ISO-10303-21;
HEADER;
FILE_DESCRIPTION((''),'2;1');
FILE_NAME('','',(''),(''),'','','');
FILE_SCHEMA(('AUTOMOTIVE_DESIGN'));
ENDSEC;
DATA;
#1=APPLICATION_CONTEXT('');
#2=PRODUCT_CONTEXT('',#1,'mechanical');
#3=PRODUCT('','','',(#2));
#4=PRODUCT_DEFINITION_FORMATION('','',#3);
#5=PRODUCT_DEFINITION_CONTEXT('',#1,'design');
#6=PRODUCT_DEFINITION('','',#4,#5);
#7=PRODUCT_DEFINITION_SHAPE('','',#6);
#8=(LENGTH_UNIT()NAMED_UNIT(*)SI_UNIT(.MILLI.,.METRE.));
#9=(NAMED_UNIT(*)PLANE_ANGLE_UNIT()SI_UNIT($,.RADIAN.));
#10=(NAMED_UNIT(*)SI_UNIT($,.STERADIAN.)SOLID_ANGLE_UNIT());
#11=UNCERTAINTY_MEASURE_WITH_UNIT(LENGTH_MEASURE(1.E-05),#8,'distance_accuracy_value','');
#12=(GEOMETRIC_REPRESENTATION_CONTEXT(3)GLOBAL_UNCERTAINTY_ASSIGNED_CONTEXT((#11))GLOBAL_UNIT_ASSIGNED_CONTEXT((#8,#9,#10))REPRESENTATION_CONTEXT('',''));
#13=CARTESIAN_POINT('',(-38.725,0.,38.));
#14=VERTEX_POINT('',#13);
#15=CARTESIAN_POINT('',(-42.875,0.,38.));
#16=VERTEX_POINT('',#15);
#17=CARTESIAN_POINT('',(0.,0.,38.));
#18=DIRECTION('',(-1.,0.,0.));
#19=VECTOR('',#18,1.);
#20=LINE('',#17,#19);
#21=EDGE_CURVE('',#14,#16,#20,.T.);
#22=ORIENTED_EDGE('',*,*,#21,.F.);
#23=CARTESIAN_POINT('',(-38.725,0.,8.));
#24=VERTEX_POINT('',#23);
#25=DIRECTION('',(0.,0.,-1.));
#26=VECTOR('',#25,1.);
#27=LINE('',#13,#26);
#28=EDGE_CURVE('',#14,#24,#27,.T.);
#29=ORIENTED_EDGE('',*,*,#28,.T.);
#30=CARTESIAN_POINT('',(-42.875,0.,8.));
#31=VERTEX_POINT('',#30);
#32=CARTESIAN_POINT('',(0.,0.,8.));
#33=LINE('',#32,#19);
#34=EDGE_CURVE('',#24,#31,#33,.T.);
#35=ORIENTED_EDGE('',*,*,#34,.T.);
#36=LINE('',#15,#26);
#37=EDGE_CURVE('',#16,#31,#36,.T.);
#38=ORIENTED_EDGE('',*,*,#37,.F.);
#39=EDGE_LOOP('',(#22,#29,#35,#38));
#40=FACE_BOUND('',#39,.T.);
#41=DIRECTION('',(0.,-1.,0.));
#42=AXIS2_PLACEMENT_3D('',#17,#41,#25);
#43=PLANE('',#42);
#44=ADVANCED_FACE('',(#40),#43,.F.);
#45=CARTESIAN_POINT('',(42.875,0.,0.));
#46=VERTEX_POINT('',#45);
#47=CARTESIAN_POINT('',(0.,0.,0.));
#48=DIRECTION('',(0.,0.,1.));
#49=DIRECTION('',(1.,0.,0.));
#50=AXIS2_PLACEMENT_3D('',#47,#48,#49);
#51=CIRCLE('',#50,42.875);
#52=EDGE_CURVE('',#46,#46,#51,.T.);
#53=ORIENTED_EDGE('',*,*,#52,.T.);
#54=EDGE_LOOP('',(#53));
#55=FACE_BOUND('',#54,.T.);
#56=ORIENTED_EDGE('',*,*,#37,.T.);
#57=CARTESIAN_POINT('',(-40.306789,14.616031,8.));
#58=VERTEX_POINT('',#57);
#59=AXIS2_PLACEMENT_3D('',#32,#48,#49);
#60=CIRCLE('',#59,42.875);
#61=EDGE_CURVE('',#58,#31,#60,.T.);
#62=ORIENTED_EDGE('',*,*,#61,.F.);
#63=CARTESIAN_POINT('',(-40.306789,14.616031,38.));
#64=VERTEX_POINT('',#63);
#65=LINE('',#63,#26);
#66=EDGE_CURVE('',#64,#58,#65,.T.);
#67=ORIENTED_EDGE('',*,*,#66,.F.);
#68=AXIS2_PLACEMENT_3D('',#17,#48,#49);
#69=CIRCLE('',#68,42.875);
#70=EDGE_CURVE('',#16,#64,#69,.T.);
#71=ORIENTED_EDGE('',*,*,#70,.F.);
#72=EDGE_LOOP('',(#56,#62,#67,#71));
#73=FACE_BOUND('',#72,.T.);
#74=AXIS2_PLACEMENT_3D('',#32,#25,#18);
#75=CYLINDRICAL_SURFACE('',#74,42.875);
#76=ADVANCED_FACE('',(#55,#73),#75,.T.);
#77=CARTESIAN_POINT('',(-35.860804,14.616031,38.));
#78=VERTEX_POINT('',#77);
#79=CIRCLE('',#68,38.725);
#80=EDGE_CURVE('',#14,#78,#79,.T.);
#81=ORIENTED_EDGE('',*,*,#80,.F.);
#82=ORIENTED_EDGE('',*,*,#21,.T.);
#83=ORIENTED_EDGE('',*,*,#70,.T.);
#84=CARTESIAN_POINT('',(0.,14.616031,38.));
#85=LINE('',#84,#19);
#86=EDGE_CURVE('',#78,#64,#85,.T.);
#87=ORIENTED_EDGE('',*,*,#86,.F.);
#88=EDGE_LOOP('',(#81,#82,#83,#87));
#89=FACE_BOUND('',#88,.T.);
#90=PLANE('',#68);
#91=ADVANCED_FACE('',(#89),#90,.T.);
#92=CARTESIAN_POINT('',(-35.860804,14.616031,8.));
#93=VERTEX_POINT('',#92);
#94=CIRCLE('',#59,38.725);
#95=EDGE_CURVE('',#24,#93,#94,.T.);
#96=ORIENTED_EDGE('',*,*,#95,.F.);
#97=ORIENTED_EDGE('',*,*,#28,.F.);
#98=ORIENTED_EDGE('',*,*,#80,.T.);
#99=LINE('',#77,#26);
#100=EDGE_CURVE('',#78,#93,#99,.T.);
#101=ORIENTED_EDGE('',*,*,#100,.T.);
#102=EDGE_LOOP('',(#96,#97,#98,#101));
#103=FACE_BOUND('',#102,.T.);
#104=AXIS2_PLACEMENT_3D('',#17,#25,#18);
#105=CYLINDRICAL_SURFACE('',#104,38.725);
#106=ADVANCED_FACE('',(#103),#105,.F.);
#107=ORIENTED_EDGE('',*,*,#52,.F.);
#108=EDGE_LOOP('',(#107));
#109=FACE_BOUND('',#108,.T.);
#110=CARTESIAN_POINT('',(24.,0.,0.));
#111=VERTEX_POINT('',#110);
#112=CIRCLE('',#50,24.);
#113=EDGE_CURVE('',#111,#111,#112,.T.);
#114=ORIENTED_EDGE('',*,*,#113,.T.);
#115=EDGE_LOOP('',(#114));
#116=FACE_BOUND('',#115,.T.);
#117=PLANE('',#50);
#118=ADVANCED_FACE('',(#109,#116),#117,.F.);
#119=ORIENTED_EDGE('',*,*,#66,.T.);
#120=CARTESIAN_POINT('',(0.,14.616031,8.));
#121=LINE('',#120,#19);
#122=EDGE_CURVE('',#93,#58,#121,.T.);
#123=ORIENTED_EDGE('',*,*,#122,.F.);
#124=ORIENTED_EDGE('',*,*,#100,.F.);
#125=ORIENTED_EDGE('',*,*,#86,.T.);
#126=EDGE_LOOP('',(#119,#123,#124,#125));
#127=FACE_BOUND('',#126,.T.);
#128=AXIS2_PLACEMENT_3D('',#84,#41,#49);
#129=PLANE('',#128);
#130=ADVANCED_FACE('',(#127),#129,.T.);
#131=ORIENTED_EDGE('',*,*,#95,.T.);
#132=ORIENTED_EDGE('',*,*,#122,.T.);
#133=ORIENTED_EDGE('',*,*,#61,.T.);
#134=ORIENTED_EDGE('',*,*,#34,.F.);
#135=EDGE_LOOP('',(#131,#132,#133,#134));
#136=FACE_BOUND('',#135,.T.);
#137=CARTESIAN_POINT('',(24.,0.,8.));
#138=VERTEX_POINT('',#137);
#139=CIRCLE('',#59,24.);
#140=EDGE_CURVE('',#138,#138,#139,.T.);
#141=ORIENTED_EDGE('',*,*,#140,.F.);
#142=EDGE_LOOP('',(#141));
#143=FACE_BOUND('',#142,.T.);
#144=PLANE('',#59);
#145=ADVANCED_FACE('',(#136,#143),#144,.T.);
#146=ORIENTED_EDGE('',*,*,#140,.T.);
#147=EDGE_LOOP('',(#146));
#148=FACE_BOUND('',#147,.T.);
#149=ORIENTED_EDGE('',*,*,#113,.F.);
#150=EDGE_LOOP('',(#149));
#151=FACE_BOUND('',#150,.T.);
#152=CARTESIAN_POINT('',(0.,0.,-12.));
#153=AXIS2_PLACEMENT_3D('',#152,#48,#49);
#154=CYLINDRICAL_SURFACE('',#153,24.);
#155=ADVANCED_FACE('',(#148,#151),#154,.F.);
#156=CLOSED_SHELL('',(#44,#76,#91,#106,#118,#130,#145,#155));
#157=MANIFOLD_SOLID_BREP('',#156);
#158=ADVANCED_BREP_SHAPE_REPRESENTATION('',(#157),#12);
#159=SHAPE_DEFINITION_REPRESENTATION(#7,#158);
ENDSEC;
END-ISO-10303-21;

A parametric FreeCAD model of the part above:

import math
import FreeCAD as App
import Part
import Sketcher

V = App.Vector
Q = App.Units.Quantity

doc = App.newDocument("Part")
body = doc.addObject("PartDesign::Body", "Body")

# Sketch on XY plane
sketch1 = doc.addObject("Sketcher::SketchObject", "Sketch")
body.addObject(sketch1)
sketch1.AttachmentSupport = (doc.XY_Plane, [""])
sketch1.MapMode = "FlatFace"
sketch1.addGeometry(Part.Circle(V(0, 0, 0), V(0, 0, 1), 43), False)
sketch1.addConstraint([
    Sketcher.Constraint("Coincident", 0, 3, -1, 1),
    Sketcher.Constraint("Diameter", 0, Q("85.75 mm")),
])
pad1 = doc.addObject("PartDesign::Pad", "Pad")
body.addObject(pad1)
pad1.Profile = sketch1
pad1.Length = 8

# Sketch on XY plane
sketch2 = doc.addObject("Sketcher::SketchObject", "Sketch001")
body.addObject(sketch2)
sketch2.AttachmentSupport = (doc.XY_Plane, [""])
sketch2.MapMode = "FlatFace"
sketch2.AttachmentOffset = App.Placement(V(0, 0, 8), App.Rotation())
sketch2.addGeometry([
    Part.ArcOfCircle(Part.Circle(V(0, 0, 0), V(0, 0, 1), 38.7), math.radians(180), math.radians(360)),  # 0
    Part.LineSegment(V(-38.7, 0, 0), V(-42.9, 0, 0)),  # 1
    Part.ArcOfCircle(Part.Circle(V(0, 0, 0), V(0, 0, 1), 42.9), math.radians(180), math.radians(360)),  # 2
    Part.ArcOfCircle(Part.Circle(V(0, 0, 0), V(0, 0, 1), 42.9), math.radians(0), math.radians(160)),  # 3
    Part.LineSegment(V(-40.3, 14.6, 0), V(-35.9, 14.6, 0)),  # 4
    Part.ArcOfCircle(Part.Circle(V(0, 0, 0), V(0, 0, 1), 38.7), math.radians(0), math.radians(158)),  # 5
], False)
sketch2.addConstraint([
    Sketcher.Constraint("Coincident", 0, 1, 1, 1),
    Sketcher.Constraint("Coincident", 1, 2, 2, 1),
    Sketcher.Constraint("Tangent", 2, 2, 3, 1),
    Sketcher.Constraint("Coincident", 3, 2, 4, 1),
    Sketcher.Constraint("Coincident", 4, 2, 5, 2),
    Sketcher.Constraint("Tangent", 5, 1, 0, 2),
    Sketcher.Constraint("Horizontal", 1),
    Sketcher.Constraint("Horizontal", 4),
    Sketcher.Constraint("Coincident", 0, 3, -1, 1),
    Sketcher.Constraint("Coincident", 2, 3, -1, 1),
    Sketcher.Constraint("Equal", 2, 3),
    Sketcher.Constraint("Equal", 0, 5),
    Sketcher.Constraint("PointOnObject", 0, 1, -1),
    Sketcher.Constraint("PointOnObject", 2, 2, -1),
    Sketcher.Constraint("PointOnObject", 5, 1, -1),
    Sketcher.Constraint("Radius", 0, Q("38.725 mm")),
    Sketcher.Constraint("Radius", 2, Q("42.875 mm")),
    Sketcher.Constraint("DistanceX", 4, 1, 4, 2, Q("4.445985 mm")),
])
pad2 = doc.addObject("PartDesign::Pad", "Pad001")
body.addObject(pad2)
pad2.Profile = sketch2
pad2.Length = 30

# Sketch on XY plane
sketch3 = doc.addObject("Sketcher::SketchObject", "Sketch002")
body.addObject(sketch3)
sketch3.AttachmentSupport = (doc.XY_Plane, [""])
sketch3.MapMode = "FlatFace"
sketch3.AttachmentOffset = App.Placement(V(0, 0, 8), App.Rotation())
sketch3.addGeometry(Part.Circle(V(0, 0, 0), V(0, 0, 1), 24), False)
sketch3.addConstraint([
    Sketcher.Constraint("Coincident", 0, 3, -1, 1),
    Sketcher.Constraint("Diameter", 0, Q("48 mm")),
])
pocket1 = doc.addObject("PartDesign::Pocket", "Pocket")
body.addObject(pocket1)
pocket1.Profile = sketch3
pocket1.Length = 20

doc.recompute()
